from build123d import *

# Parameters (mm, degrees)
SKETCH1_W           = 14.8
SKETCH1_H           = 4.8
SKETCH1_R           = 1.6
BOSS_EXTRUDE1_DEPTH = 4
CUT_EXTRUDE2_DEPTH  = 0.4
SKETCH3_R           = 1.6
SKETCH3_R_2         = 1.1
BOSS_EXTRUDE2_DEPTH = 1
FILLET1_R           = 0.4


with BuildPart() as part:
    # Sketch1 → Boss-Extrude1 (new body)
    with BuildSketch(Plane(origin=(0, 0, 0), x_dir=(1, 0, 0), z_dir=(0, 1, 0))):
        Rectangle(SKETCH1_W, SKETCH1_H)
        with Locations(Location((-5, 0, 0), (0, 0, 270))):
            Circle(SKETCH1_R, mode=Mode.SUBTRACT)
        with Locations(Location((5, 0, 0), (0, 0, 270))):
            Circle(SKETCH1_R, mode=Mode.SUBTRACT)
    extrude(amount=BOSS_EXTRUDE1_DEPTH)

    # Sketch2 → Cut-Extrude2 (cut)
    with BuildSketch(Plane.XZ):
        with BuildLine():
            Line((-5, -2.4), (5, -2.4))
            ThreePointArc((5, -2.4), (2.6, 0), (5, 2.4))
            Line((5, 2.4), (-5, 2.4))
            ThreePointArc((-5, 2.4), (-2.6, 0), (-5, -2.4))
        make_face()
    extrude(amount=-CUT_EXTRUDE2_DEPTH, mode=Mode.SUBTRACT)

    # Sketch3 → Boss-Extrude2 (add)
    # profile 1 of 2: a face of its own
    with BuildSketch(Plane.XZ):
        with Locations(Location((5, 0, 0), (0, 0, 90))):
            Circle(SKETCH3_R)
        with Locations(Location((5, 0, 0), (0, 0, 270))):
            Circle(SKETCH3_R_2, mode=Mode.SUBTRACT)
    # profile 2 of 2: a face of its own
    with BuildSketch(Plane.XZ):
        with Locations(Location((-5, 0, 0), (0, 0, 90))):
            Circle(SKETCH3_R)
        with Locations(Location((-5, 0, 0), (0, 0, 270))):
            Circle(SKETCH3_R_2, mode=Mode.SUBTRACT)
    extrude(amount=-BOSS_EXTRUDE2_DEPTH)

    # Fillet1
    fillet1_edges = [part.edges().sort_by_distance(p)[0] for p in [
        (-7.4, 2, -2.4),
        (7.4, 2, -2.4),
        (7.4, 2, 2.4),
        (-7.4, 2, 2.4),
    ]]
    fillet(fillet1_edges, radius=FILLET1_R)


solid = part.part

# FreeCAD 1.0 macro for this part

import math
import FreeCAD as App
import Part
import Sketcher
Q = App.Units.Quantity


def edges_at(feature, points):
    """Names of the edges that pass closest to the given points."""
    edges = feature.Shape.Edges
    near = lambda p: min(range(len(edges)), key=lambda i: edges[i].distToShape(Part.Vertex(*p))[0])
    return sorted({f"Edge{near(p) + 1}" for p in points})

doc = App.newDocument("Part")
params = doc.addObject("Spreadsheet::Sheet", "Params")
for row, (alias, value) in enumerate([
    ("sketch1_diameter", "3.2 mm"),
    ("sketch1_width", "14.8 mm"),
    ("sketch1_height", "4.8 mm"),
    ("pad1_length", "4 mm"),
    ("sketch2_radius", "2.4 mm"),
    ("sketch2_width", "10 mm"),
    ("pocket1_length", "0.4 mm"),
    ("sketch3_diameter", "3.2 mm"),
    ("sketch3_diameter2", "2.2 mm"),
    ("pad2_length", "1 mm"),
    ("fillet_radius", "0.4 mm"),
], start=1):
    params.set(f"A{row}", alias)
    params.set(f"B{row}", "=" + value)
    params.setAlias(f"B{row}", alias)

body = doc.addObject("PartDesign::Body", "Body")

# Sketch on XZ plane
sketch1 = body.newObject("Sketcher::SketchObject", "Sketch")
sketch1.AttachmentSupport = (doc.getObject("XZ_Plane"), [""])
sketch1.MapMode = "FlatFace"
sketch1.addGeometry(Part.LineSegment(App.Vector(-7.4, -2.4, 0), App.Vector(-7.4, 2.4, 0)), False)
sketch1.addGeometry(Part.LineSegment(App.Vector(-7.4, 2.4, 0), App.Vector(7.4, 2.4, 0)), False)
sketch1.addGeometry(Part.LineSegment(App.Vector(7.4, 2.4, 0), App.Vector(7.4, -2.4, 0)), False)
sketch1.addGeometry(Part.LineSegment(App.Vector(7.4, -2.4, 0), App.Vector(-7.4, -2.4, 0)), False)
sketch1.addGeometry(Part.Circle(App.Vector(-5, 0, 0), App.Vector(0, 0, 1), 1.6), False)
sketch1.addGeometry(Part.Circle(App.Vector(5, 0, 0), App.Vector(0, 0, 1), 1.6), False)
sketch1.addConstraint(Sketcher.Constraint("Coincident", 0, 2, 1, 1))
sketch1.addConstraint(Sketcher.Constraint("Coincident", 1, 2, 2, 1))
sketch1.addConstraint(Sketcher.Constraint("Coincident", 2, 2, 3, 1))
sketch1.addConstraint(Sketcher.Constraint("Coincident", 3, 2, 0, 1))
sketch1.addConstraint(Sketcher.Constraint("Vertical", 0))
sketch1.addConstraint(Sketcher.Constraint("Horizontal", 1))
sketch1.addConstraint(Sketcher.Constraint("Vertical", 2))
sketch1.addConstraint(Sketcher.Constraint("Horizontal", 3))
sketch1.addConstraint(Sketcher.Constraint("Equal", 4, 5))
sketch1.addConstraint(Sketcher.Constraint("Symmetric", 4, 3, 5, 3, -1, 1))
sketch1.addConstraint(Sketcher.Constraint("Symmetric", 0, 2, 2, 2, -1, 1))
sketch1.addConstraint(Sketcher.Constraint("PointOnObject", 4, 3, -1))
sketch1.addConstraint(Sketcher.Constraint("Diameter", 4, Q("3.2 mm")))
sketch1.addConstraint(Sketcher.Constraint("DistanceX", 1, 1, 1, 2, Q("14.8 mm")))
sketch1.addConstraint(Sketcher.Constraint("DistanceY", 0, 1, 0, 2, Q("4.8 mm")))
sketch1.addConstraint(Sketcher.Constraint("DistanceX", 4, 3, -1, 1, Q("5 mm")))
sketch1.setExpression("Constraints[12]", "Params.sketch1_diameter")
sketch1.setExpression("Constraints[13]", "Params.sketch1_width")
sketch1.setExpression("Constraints[14]", "Params.sketch1_height")
pad1 = body.newObject("PartDesign::Pad", "Pad")
pad1.Profile = sketch1
pad1.setExpression("Length", "Params.pad1_length")
pad1.Reversed = True

# Sketch on XZ plane
sketch2 = body.newObject("Sketcher::SketchObject", "Sketch001")
sketch2.AttachmentSupport = (doc.getObject("XZ_Plane"), [""])
sketch2.MapMode = "FlatFace"
sketch2.addGeometry(Part.LineSegment(App.Vector(-5, -2.4, 0), App.Vector(5, -2.4, 0)), False)
sketch2.addGeometry(Part.ArcOfCircle(Part.Circle(App.Vector(5, 0, 0), App.Vector(0, 0, 1), 2.4), math.radians(90), math.radians(270)), False)
sketch2.addGeometry(Part.LineSegment(App.Vector(5, 2.4, 0), App.Vector(-5, 2.4, 0)), False)
sketch2.addGeometry(Part.ArcOfCircle(Part.Circle(App.Vector(-5, 0, 0), App.Vector(0, 0, 1), 2.4), math.radians(-90), math.radians(90)), False)
sketch2.addConstraint(Sketcher.Constraint("Tangent", 0, 2, 1, 2))
sketch2.addConstraint(Sketcher.Constraint("Tangent", 1, 1, 2, 1))
sketch2.addConstraint(Sketcher.Constraint("Tangent", 2, 2, 3, 2))
sketch2.addConstraint(Sketcher.Constraint("Tangent", 3, 1, 0, 1))
sketch2.addConstraint(Sketcher.Constraint("Horizontal", 0))
sketch2.addConstraint(Sketcher.Constraint("Horizontal", 2))
sketch2.addConstraint(Sketcher.Constraint("Symmetric", 1, 3, 3, 3, -1, 1))
sketch2.addConstraint(Sketcher.Constraint("Radius", 1, Q("2.4 mm")))
sketch2.addConstraint(Sketcher.Constraint("DistanceX", 0, 1, 0, 2, Q("10 mm")))
sketch2.setExpression("Constraints[7]", "Params.sketch2_radius")
sketch2.setExpression("Constraints[8]", "Params.sketch2_width")
pocket1 = body.newObject("PartDesign::Pocket", "Pocket")
pocket1.Profile = sketch2
pocket1.setExpression("Length", "Params.pocket1_length")

# Sketch on XZ plane
sketch3 = body.newObject("Sketcher::SketchObject", "Sketch002")
sketch3.AttachmentSupport = (doc.getObject("XZ_Plane"), [""])
sketch3.MapMode = "FlatFace"
sketch3.addGeometry(Part.Circle(App.Vector(5, 0, 0), App.Vector(0, 0, 1), 1.6), False)
sketch3.addGeometry(Part.Circle(App.Vector(5, 0, 0), App.Vector(0, 0, 1), 1.1), False)
sketch3.addGeometry(Part.Circle(App.Vector(-5, 0, 0), App.Vector(0, 0, 1), 1.6), False)
sketch3.addGeometry(Part.Circle(App.Vector(-5, 0, 0), App.Vector(0, 0, 1), 1.1), False)
sketch3.addConstraint(Sketcher.Constraint("Coincident", 1, 3, 0, 3))
sketch3.addConstraint(Sketcher.Constraint("Coincident", 3, 3, 2, 3))
sketch3.addConstraint(Sketcher.Constraint("Equal", 0, 2))
sketch3.addConstraint(Sketcher.Constraint("Equal", 1, 3))
sketch3.addConstraint(Sketcher.Constraint("Symmetric", 0, 3, 2, 3, -1, 1))
sketch3.addConstraint(Sketcher.Constraint("PointOnObject", 0, 3, -1))
sketch3.addConstraint(Sketcher.Constraint("Diameter", 0, Q("3.2 mm")))
sketch3.addConstraint(Sketcher.Constraint("Diameter", 1, Q("2.2 mm")))
sketch3.addConstraint(Sketcher.Constraint("DistanceX", -1, 1, 0, 3, Q("5 mm")))
sketch3.setExpression("Constraints[6]", "Params.sketch3_diameter")
sketch3.setExpression("Constraints[7]", "Params.sketch3_diameter2")
pad2 = body.newObject("PartDesign::Pad", "Pad001")
pad2.Profile = sketch3
pad2.setExpression("Length", "Params.pad2_length")
pad2.Reversed = True
doc.recompute()

fillet = body.newObject("PartDesign::Fillet", "Fillet")
fillet.Base = (pad2, edges_at(pad2, [
    (-7.4, 2, -2.4),
    (7.4, 2, -2.4),
    (7.4, 2, 2.4),
    (-7.4, 2, 2.4),
]))
fillet.setExpression("Radius", "Params.fillet_radius")

doc.recompute()
